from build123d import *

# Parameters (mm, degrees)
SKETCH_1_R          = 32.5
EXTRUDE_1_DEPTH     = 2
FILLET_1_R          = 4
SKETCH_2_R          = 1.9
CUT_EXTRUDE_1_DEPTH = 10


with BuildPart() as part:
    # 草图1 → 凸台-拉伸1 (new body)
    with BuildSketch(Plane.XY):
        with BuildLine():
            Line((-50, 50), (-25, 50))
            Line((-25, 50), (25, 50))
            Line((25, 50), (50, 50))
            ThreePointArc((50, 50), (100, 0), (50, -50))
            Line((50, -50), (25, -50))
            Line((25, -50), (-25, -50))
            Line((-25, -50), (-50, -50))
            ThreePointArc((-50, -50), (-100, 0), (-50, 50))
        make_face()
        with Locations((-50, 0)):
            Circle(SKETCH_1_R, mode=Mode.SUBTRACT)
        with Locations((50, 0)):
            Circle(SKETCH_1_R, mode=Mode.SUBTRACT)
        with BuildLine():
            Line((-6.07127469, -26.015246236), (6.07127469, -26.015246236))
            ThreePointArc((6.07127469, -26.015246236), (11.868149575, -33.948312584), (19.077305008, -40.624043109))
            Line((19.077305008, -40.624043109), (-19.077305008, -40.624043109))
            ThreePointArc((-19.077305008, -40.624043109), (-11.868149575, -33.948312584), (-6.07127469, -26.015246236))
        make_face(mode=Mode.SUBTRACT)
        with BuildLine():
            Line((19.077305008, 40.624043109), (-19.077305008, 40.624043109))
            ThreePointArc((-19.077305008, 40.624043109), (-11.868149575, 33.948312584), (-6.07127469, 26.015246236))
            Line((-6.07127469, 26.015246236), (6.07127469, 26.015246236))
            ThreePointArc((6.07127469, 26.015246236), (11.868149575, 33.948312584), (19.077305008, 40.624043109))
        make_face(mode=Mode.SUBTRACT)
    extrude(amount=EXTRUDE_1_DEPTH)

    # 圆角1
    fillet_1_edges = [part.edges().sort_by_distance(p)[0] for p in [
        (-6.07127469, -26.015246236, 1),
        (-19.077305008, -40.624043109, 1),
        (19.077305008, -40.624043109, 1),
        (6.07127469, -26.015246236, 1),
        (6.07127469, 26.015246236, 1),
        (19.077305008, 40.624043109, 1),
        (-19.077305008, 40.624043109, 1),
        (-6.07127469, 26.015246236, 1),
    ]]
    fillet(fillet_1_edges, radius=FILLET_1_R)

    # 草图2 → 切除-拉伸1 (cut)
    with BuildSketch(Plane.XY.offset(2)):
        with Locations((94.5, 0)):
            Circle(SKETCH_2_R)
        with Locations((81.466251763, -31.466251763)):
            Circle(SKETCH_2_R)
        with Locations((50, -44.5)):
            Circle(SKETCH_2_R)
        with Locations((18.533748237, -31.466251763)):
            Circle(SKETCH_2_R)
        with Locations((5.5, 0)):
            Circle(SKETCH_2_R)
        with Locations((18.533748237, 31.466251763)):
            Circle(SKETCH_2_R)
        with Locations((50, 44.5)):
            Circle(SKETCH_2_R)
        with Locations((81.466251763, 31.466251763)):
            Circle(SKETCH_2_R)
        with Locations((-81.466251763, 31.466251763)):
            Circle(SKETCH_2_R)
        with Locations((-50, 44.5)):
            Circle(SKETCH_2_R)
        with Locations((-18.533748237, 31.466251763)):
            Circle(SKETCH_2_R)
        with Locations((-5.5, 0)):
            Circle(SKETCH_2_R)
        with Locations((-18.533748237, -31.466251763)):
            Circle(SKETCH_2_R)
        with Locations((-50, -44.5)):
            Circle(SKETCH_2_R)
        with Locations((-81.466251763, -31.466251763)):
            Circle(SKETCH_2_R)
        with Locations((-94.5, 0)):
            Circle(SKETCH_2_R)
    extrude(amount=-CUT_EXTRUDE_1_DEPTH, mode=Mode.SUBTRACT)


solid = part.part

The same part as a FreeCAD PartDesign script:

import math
import FreeCAD as App
import Part
import Sketcher
from FreeCAD import Vector


def edges_at(feature, points):
    """Names of the edges that pass closest to the given points."""
    edges = feature.Shape.Edges
    near = lambda p: min(range(len(edges)), key=lambda i: edges[i].distToShape(Part.Vertex(*p))[0])
    return sorted({f"Edge{near(p) + 1}" for p in points})

doc = App.newDocument("Part")
body = doc.addObject("PartDesign::Body", "Body")

# Sketch on XY plane
sketch1 = doc.addObject("Sketcher::SketchObject", "Sketch")
body.addObject(sketch1)
sketch1.AttachmentSupport = (doc.XY_Plane, [""])
sketch1.MapMode = "FlatFace"
sketch1.addGeometry(Part.LineSegment(Vector(50, 50, 0), Vector(-50, 50, 0)), False)
sketch1.addGeometry(Part.ArcOfCircle(Part.Circle(Vector(-50, 0, 0), Vector(0, 0, 1), 50), math.radians(90), math.radians(270)), False)
sketch1.addGeometry(Part.LineSegment(Vector(-50, -50, 0), Vector(50, -50, 0)), False)
sketch1.addGeometry(Part.ArcOfCircle(Part.Circle(Vector(50, 0, 0), Vector(0, 0, 1), 50), math.radians(-90), math.radians(90)), False)
sketch1.addGeometry(Part.LineSegment(Vector(-6, -26, 0), Vector(6, -26, 0)), False)
sketch1.addGeometry(Part.ArcOfCircle(Part.Circle(Vector(50, 0, 0), Vector(0, 0, 1), 51), math.radians(-149), math.radians(-127)), False)
sketch1.addGeometry(Part.LineSegment(Vector(19, -41, 0), Vector(-19, -41, 0)), False)
sketch1.addGeometry(Part.ArcOfCircle(Part.Circle(Vector(-50, 0, 0), Vector(0, 0, 1), 51), math.radians(-53), math.radians(-31)), False)
sketch1.addGeometry(Part.Circle(Vector(50, 0, 0), Vector(0, 0, 1), 32), False)
sketch1.addGeometry(Part.Circle(Vector(-50, 0, 0), Vector(0, 0, 1), 32), False)
sketch1.addGeometry(Part.ArcOfCircle(Part.Circle(Vector(50, 0, 0), Vector(0, 0, 1), 51), math.radians(127), math.radians(149)), False)
sketch1.addGeometry(Part.LineSegment(Vector(6, 26, 0), Vector(-6, 26, 0)), False)
sketch1.addGeometry(Part.ArcOfCircle(Part.Circle(Vector(-50, 0, 0), Vector(0, 0, 1), 51), math.radians(31), math.radians(53)), False)
sketch1.addGeometry(Part.LineSegment(Vector(-19, 41, 0), Vector(19, 41, 0)), False)
sketch1.addConstraint(Sketcher.Constraint("Tangent", 0, 2, 1, 1))
sketch1.addConstraint(Sketcher.Constraint("Tangent", 1, 2, 2, 1))
sketch1.addConstraint(Sketcher.Constraint("Tangent", 2, 2, 3, 1))
sketch1.addConstraint(Sketcher.Constraint("Tangent", 3, 2, 0, 1))
sketch1.addConstraint(Sketcher.Constraint("Coincident", 4, 2, 5, 1))
sketch1.addConstraint(Sketcher.Constraint("Coincident", 5, 2, 6, 1))
sketch1.addConstraint(Sketcher.Constraint("Coincident", 6, 2, 7, 1))
sketch1.addConstraint(Sketcher.Constraint("Coincident", 7, 2, 4, 1))
sketch1.addConstraint(Sketcher.Constraint("Coincident", 10, 2, 11, 1))
sketch1.addConstraint(Sketcher.Constraint("Coincident", 11, 2, 12, 1))
sketch1.addConstraint(Sketcher.Constraint("Coincident", 12, 2, 13, 1))
sketch1.addConstraint(Sketcher.Constraint("Coincident", 13, 2, 10, 1))
sketch1.addConstraint(Sketcher.Constraint("Horizontal", 0))
sketch1.addConstraint(Sketcher.Constraint("Horizontal", 2))
sketch1.addConstraint(Sketcher.Constraint("Horizontal", 4))
sketch1.addConstraint(Sketcher.Constraint("Horizontal", 6))
sketch1.addConstraint(Sketcher.Constraint("Horizontal", 11))
sketch1.addConstraint(Sketcher.Constraint("Horizontal", 13))
sketch1.addConstraint(Sketcher.Constraint("Coincident", 5, 3, 3, 3))
sketch1.addConstraint(Sketcher.Constraint("Coincident", 7, 3, 1, 3))
sketch1.addConstraint(Sketcher.Constraint("Coincident", 8, 3, 3, 3))
sketch1.addConstraint(Sketcher.Constraint("Coincident", 9, 3, 1, 3))
sketch1.addConstraint(Sketcher.Constraint("Coincident", 10, 3, 3, 3))
sketch1.addConstraint(Sketcher.Constraint("Coincident", 12, 3, 1, 3))
sketch1.addConstraint(Sketcher.Constraint("Equal", 5, 7))
sketch1.addConstraint(Sketcher.Constraint("Equal", 8, 9))
sketch1.addConstraint(Sketcher.Constraint("Equal", 7, 10))
sketch1.addConstraint(Sketcher.Constraint("Equal", 10, 12))
sketch1.addConstraint(Sketcher.Constraint("Symmetric", 1, 3, 3, 3, -1, 1))
sketch1.addConstraint(Sketcher.Constraint("Vertical", 4, 2, 10, 2))
sketch1.addConstraint(Sketcher.Constraint("Vertical", 6, 2, 12, 2))
sketch1.addConstraint(Sketcher.Constraint("Diameter", 8, 65.0))
sketch1.addConstraint(Sketcher.Constraint("Radius", 1, 50.0))
sketch1.addConstraint(Sketcher.Constraint("DistanceX", 0, 2, 0, 1, 100.0))
sketch1.addConstraint(Sketcher.Constraint("Radius", 5, 51.054147))
sketch1.addConstraint(Sketcher.Constraint("DistanceX", 4, 1, 4, 2, 12.142549))
sketch1.addConstraint(Sketcher.Constraint("DistanceX", 6, 2, 6, 1, 38.15461))
pad1 = doc.addObject("PartDesign::Pad", "Pad")
body.addObject(pad1)
pad1.Profile = sketch1
pad1.Length = 2
doc.recompute()

fillet = doc.addObject("PartDesign::Fillet", "Fillet")
body.addObject(fillet)
fillet.Base = (pad1, edges_at(pad1, [
    (-6.071, -26.015, 1),
    (-19.077, -40.624, 1),
    (19.077, -40.624, 1),
    (6.071, -26.015, 1),
    (6.071, 26.015, 1),
    (19.077, 40.624, 1),
    (-19.077, 40.624, 1),
    (-6.071, 26.015, 1),
]))
fillet.Radius = 4

# Sketch on XY plane
sketch2 = doc.addObject("Sketcher::SketchObject", "Sketch001")
body.addObject(sketch2)
sketch2.AttachmentSupport = (doc.XY_Plane, [""])
sketch2.MapMode = "FlatFace"
sketch2.AttachmentOffset = App.Placement(Vector(0, 0, 2), App.Rotation())
sketch2.addGeometry(Part.Circle(Vector(94.5, 0, 0), Vector(0, 0, 1), 1.9), False)
sketch2.addGeometry(Part.Circle(Vector(81.5, -31.5, 0), Vector(0, 0, 1), 1.9), False)
sketch2.addGeometry(Part.Circle(Vector(50, -44.5, 0), Vector(0, 0, 1), 1.9), False)
sketch2.addGeometry(Part.Circle(Vector(18.5, -31.5, 0), Vector(0, 0, 1), 1.9), False)
sketch2.addGeometry(Part.Circle(Vector(5.5, 0, 0), Vector(0, 0, 1), 1.9), False)
sketch2.addGeometry(Part.Circle(Vector(18.5, 31.5, 0), Vector(0, 0, 1), 1.9), False)
sketch2.addGeometry(Part.Circle(Vector(50, 44.5, 0), Vector(0, 0, 1), 1.9), False)
sketch2.addGeometry(Part.Circle(Vector(81.5, 31.5, 0), Vector(0, 0, 1), 1.9), False)
sketch2.addGeometry(Part.Circle(Vector(-81.5, 31.5, 0), Vector(0, 0, 1), 1.9), False)
sketch2.addGeometry(Part.Circle(Vector(-50, 44.5, 0), Vector(0, 0, 1), 1.9), False)
sketch2.addGeometry(Part.Circle(Vector(-18.5, 31.5, 0), Vector(0, 0, 1), 1.9), False)
sketch2.addGeometry(Part.Circle(Vector(-5.5, 0, 0), Vector(0, 0, 1), 1.9), False)
sketch2.addGeometry(Part.Circle(Vector(-18.5, -31.5, 0), Vector(0, 0, 1), 1.9), False)
sketch2.addGeometry(Part.Circle(Vector(-50, -44.5, 0), Vector(0, 0, 1), 1.9), False)
sketch2.addGeometry(Part.Circle(Vector(-81.5, -31.5, 0), Vector(0, 0, 1), 1.9), False)
sketch2.addGeometry(Part.Circle(Vector(-94.5, 0, 0), Vector(0, 0, 1), 1.9), False)
sketch2.addConstraint(Sketcher.Constraint("Equal", 0, 1))
sketch2.addConstraint(Sketcher.Constraint("Equal", 1, 2))
sketch2.addConstraint(Sketcher.Constraint("Equal", 2, 3))
sketch2.addConstraint(Sketcher.Constraint("Equal", 3, 4))
sketch2.addConstraint(Sketcher.Constraint("Equal", 4, 5))
sketch2.addConstraint(Sketcher.Constraint("Equal", 5, 6))
sketch2.addConstraint(Sketcher.Constraint("Equal", 6, 7))
sketch2.addConstraint(Sketcher.Constraint("Equal", 7, 8))
sketch2.addConstraint(Sketcher.Constraint("Equal", 8, 9))
sketch2.addConstraint(Sketcher.Constraint("Equal", 9, 10))
sketch2.addConstraint(Sketcher.Constraint("Equal", 10, 11))
sketch2.addConstraint(Sketcher.Constraint("Equal", 11, 12))
sketch2.addConstraint(Sketcher.Constraint("Equal", 12, 13))
sketch2.addConstraint(Sketcher.Constraint("Equal", 13, 14))
sketch2.addConstraint(Sketcher.Constraint("Equal", 14, 15))
sketch2.addConstraint(Sketcher.Constraint("Symmetric", 1, 3, 8, 3, -1, 1))
sketch2.addConstraint(Sketcher.Constraint("Symmetric", 2, 3, 9, 3, -1, 1))
sketch2.addConstraint(Sketcher.Constraint("Symmetric", 3, 3, 10, 3, -1, 1))
sketch2.addConstraint(Sketcher.Constraint("Symmetric", 4, 3, 11, 3, -1, 1))
sketch2.addConstraint(Sketcher.Constraint("Symmetric", 5, 3, 12, 3, -1, 1))
sketch2.addConstraint(Sketcher.Constraint("Symmetric", 6, 3, 13, 3, -1, 1))
sketch2.addConstraint(Sketcher.Constraint("Symmetric", 7, 3, 14, 3, -1, 1))
sketch2.addConstraint(Sketcher.Constraint("Symmetric", 0, 3, 15, 3, -1, 1))
sketch2.addConstraint(Sketcher.Constraint("Symmetric", 7, 3, 8, 3, -2))
sketch2.addConstraint(Sketcher.Constraint("Symmetric", 6, 3, 9, 3, -2))
sketch2.addConstraint(Sketcher.Constraint("Symmetric", 5, 3, 10, 3, -2))
sketch2.addConstraint(Sketcher.Constraint("PointOnObject", 0, 3, -1))
sketch2.addConstraint(Sketcher.Constraint("PointOnObject", 4, 3, -1))
sketch2.addConstraint(Sketcher.Constraint("Horizontal", 1, 3, 3, 3))
sketch2.addConstraint(Sketcher.Constraint("Diameter", 0, 3.8))
sketch2.addConstraint(Sketcher.Constraint("DistanceX", -1, 1, 2, 3, 50.0))
sketch2.addConstraint(Sketcher.Constraint("DistanceX", 4, 3, 0, 3, 89.0))
sketch2.addConstraint(Sketcher.Constraint("DistanceX", 8, 3, 5, 3, 100.0))
sketch2.addConstraint(Sketcher.Constraint("DistanceX", 11, 3, 4, 3, 11.0))
sketch2.addConstraint(Sketcher.Constraint("DistanceY", 2, 3, -1, 1, 44.5))
sketch2.addConstraint(Sketcher.Constraint("DistanceX", -1, 1, 1, 3, 81.466252))
sketch2.addConstraint(Sketcher.Constraint("DistanceY", 1, 3, -1, 1, 31.466252))
pocket1 = doc.addObject("PartDesign::Pocket", "Pocket")
body.addObject(pocket1)
pocket1.Profile = sketch2
pocket1.Length = 10

doc.recompute()
